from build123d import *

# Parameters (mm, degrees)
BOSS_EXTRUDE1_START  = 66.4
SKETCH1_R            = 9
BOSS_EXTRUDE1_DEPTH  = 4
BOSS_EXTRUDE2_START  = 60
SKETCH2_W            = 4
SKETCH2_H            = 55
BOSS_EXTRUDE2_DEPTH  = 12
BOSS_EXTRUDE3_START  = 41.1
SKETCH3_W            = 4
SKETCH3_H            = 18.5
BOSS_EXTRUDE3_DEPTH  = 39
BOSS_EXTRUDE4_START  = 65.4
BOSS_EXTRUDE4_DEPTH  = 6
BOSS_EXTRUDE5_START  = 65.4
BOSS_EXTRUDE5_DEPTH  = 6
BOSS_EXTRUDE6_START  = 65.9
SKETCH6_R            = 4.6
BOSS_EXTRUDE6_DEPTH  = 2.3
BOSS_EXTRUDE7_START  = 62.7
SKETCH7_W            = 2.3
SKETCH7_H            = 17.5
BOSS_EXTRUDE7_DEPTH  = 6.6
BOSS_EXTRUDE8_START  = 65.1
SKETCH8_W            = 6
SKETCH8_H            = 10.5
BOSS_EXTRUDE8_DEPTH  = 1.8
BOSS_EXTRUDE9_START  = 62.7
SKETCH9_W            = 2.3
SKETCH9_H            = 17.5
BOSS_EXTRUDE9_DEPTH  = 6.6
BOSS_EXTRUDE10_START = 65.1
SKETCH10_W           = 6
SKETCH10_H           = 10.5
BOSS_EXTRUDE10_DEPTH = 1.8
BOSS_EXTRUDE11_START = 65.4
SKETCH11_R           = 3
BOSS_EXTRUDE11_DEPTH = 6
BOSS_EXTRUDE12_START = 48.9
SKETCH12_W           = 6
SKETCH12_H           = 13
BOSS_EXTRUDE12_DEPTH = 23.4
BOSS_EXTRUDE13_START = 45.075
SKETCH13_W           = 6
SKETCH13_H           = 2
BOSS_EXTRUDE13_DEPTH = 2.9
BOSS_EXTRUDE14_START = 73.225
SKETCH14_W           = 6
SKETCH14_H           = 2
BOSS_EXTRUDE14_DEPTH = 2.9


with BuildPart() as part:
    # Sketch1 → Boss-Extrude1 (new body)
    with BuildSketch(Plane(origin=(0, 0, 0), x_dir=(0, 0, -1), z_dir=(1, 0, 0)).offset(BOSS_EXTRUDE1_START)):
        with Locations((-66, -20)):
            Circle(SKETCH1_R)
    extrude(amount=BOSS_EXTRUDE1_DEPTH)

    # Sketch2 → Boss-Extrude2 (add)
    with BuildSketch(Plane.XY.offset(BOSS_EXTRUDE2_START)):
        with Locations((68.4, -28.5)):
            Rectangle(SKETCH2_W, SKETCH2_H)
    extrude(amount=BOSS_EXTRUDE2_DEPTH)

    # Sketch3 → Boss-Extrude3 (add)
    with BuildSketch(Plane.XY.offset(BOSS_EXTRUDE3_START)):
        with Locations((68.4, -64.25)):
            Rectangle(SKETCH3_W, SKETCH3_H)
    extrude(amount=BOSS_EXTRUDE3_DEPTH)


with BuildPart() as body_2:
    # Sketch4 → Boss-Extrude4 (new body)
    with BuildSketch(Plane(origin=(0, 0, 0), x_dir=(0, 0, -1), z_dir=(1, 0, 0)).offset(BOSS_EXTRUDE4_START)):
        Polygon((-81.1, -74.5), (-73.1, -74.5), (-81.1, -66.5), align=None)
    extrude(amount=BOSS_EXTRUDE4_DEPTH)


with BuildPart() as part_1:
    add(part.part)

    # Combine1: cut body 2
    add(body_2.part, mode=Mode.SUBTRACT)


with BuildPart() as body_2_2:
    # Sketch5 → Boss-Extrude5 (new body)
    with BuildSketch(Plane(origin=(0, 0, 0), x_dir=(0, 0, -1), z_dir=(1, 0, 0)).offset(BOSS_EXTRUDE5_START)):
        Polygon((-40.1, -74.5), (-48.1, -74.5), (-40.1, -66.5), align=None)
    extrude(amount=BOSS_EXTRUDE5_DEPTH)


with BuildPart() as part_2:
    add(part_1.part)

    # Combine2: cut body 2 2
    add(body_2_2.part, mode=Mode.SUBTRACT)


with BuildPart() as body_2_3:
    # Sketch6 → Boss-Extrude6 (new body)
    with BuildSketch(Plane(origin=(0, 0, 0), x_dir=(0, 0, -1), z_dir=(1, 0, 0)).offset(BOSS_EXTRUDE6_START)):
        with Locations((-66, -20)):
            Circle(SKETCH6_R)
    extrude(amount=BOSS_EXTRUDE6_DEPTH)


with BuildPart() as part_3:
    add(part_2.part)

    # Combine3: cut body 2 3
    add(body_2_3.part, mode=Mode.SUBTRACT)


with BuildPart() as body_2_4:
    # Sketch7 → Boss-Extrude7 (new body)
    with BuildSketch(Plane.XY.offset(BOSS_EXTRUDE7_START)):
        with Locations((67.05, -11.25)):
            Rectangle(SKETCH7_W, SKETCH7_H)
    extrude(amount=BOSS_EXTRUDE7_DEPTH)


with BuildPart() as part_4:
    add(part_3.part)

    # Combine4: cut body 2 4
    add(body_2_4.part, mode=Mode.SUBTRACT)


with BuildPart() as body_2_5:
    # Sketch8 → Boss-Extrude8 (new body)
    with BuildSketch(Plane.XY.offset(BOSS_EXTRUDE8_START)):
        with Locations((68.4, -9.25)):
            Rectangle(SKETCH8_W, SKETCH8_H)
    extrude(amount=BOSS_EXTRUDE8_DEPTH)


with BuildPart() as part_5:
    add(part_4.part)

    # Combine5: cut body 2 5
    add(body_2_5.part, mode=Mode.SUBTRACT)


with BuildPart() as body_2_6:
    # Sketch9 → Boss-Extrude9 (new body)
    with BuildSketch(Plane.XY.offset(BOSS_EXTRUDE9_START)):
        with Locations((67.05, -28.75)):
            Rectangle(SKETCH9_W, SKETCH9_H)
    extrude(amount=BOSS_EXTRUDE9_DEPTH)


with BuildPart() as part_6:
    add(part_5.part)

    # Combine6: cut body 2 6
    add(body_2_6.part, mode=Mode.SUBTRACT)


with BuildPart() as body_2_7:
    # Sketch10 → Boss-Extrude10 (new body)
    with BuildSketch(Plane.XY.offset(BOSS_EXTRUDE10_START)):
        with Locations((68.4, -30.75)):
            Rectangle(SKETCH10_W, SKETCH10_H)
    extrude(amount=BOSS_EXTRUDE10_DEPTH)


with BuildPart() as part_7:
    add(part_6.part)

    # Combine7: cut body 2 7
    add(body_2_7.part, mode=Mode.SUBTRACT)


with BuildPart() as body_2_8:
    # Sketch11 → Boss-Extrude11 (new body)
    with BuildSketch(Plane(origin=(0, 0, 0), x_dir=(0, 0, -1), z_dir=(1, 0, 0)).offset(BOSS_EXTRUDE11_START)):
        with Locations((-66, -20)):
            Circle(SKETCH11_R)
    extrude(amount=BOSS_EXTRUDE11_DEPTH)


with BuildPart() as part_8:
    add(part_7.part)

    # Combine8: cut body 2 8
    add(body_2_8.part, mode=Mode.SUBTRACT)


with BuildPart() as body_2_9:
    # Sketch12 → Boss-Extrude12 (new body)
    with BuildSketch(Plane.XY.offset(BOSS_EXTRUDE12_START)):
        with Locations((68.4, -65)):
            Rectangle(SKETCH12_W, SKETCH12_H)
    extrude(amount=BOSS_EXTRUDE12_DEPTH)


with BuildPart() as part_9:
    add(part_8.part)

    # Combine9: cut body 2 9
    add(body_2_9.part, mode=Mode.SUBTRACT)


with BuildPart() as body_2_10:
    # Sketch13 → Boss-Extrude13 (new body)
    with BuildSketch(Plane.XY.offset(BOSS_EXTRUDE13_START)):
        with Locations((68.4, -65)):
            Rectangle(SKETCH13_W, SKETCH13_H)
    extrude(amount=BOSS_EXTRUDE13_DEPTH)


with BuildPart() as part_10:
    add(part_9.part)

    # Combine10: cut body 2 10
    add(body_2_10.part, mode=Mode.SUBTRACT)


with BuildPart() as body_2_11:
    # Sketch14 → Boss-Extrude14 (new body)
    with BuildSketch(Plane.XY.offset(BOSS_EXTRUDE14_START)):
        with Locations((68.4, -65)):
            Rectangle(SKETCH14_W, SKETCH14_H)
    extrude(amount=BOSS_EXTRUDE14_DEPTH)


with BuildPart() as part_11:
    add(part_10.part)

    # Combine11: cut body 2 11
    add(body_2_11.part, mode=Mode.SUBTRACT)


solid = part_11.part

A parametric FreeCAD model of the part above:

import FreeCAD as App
import Part
import Sketcher
Q = App.Units.Quantity

doc = App.newDocument("Part")
body = doc.addObject("PartDesign::Body", "Body")

# Sketch on YZ plane
sketch1 = body.newObject("Sketcher::SketchObject", "Sketch")
sketch1.AttachmentSupport = (doc.getObject("YZ_Plane"), [""])
sketch1.MapMode = "FlatFace"
sketch1.AttachmentOffset = App.Placement(App.Vector(0, 0, 66.4), App.Rotation())
sketch1.addGeometry(Part.Circle(App.Vector(-20, 66, 0), App.Vector(0, 0, 1), 9), False)
sketch1.addConstraint([
    Sketcher.Constraint("Diameter", 0, Q("18 mm")),
    Sketcher.Constraint("DistanceX", 0, 3, -1, 1, Q("20 mm")),
    Sketcher.Constraint("DistanceY", -1, 1, 0, 3, Q("66 mm")),
])
pad1 = body.newObject("PartDesign::Pad", "Pad")
pad1.Profile = sketch1
pad1.Length = 4

# Sketch on XY plane
sketch2 = body.newObject("Sketcher::SketchObject", "Sketch001")
sketch2.AttachmentSupport = (doc.getObject("XY_Plane"), [""])
sketch2.MapMode = "FlatFace"
sketch2.AttachmentOffset = App.Placement(App.Vector(0, 0, 60), App.Rotation())
sketch2.addGeometry([
    Part.LineSegment(App.Vector(66.4, -1, 0), App.Vector(66.4, -56, 0)),
    Part.LineSegment(App.Vector(66.4, -56, 0), App.Vector(70.4, -56, 0)),
    Part.LineSegment(App.Vector(70.4, -56, 0), App.Vector(70.4, -1, 0)),
    Part.LineSegment(App.Vector(70.4, -1, 0), App.Vector(66.4, -1, 0)),
], False)
sketch2.addConstraint([
    Sketcher.Constraint("Coincident", 0, 2, 1, 1),
    Sketcher.Constraint("Coincident", 1, 2, 2, 1),
    Sketcher.Constraint("Coincident", 2, 2, 3, 1),
    Sketcher.Constraint("Coincident", 3, 2, 0, 1),
    Sketcher.Constraint("Vertical", 0),
    Sketcher.Constraint("Horizontal", 1),
    Sketcher.Constraint("Vertical", 2),
    Sketcher.Constraint("Horizontal", 3),
    Sketcher.Constraint("DistanceX", 1, 1, 1, 2, Q("4 mm")),
    Sketcher.Constraint("DistanceY", 0, 2, 0, 1, Q("55 mm")),
    Sketcher.Constraint("DistanceY", 0, 2, -1, 1, Q("56 mm")),
    Sketcher.Constraint("DistanceX", -1, 1, 0, 2, Q("66.4 mm")),
])
pad2 = body.newObject("PartDesign::Pad", "Pad001")
pad2.Profile = sketch2
pad2.Length = 12

# Sketch on XY plane
sketch3 = body.newObject("Sketcher::SketchObject", "Sketch002")
sketch3.AttachmentSupport = (doc.getObject("XY_Plane"), [""])
sketch3.MapMode = "FlatFace"
sketch3.AttachmentOffset = App.Placement(App.Vector(0, 0, 41.1), App.Rotation())
sketch3.addGeometry([
    Part.LineSegment(App.Vector(66.4, -55, 0), App.Vector(66.4, -73.5, 0)),
    Part.LineSegment(App.Vector(66.4, -73.5, 0), App.Vector(70.4, -73.5, 0)),
    Part.LineSegment(App.Vector(70.4, -73.5, 0), App.Vector(70.4, -55, 0)),
    Part.LineSegment(App.Vector(70.4, -55, 0), App.Vector(66.4, -55, 0)),
], False)
sketch3.addConstraint([
    Sketcher.Constraint("Coincident", 0, 2, 1, 1),
    Sketcher.Constraint("Coincident", 1, 2, 2, 1),
    Sketcher.Constraint("Coincident", 2, 2, 3, 1),
    Sketcher.Constraint("Coincident", 3, 2, 0, 1),
    Sketcher.Constraint("Vertical", 0),
    Sketcher.Constraint("Horizontal", 1),
    Sketcher.Constraint("Vertical", 2),
    Sketcher.Constraint("Horizontal", 3),
    Sketcher.Constraint("DistanceX", 1, 1, 1, 2, Q("4 mm")),
    Sketcher.Constraint("DistanceY", 0, 2, 0, 1, Q("18.5 mm")),
    Sketcher.Constraint("DistanceY", 2, 2, -1, 1, Q("55 mm")),
    Sketcher.Constraint("DistanceX", -1, 1, 0, 2, Q("66.4 mm")),
])
pad3 = body.newObject("PartDesign::Pad", "Pad002")
pad3.Profile = sketch3
pad3.Length = 39
body2 = doc.addObject("PartDesign::Body", "Body001")

# Sketch on YZ plane
sketch4 = body2.newObject("Sketcher::SketchObject", "Sketch003")
sketch4.AttachmentSupport = (doc.getObject("YZ_Plane001"), [""])
sketch4.MapMode = "FlatFace"
sketch4.AttachmentOffset = App.Placement(App.Vector(0, 0, 65.4), App.Rotation())
sketch4.addGeometry([
    Part.LineSegment(App.Vector(-74, 81, 0), App.Vector(-74, 73, 0)),
    Part.LineSegment(App.Vector(-74, 73, 0), App.Vector(-66, 81, 0)),
    Part.LineSegment(App.Vector(-66, 81, 0), App.Vector(-74, 81, 0)),
], False)
sketch4.addConstraint([
    Sketcher.Constraint("Coincident", 0, 2, 1, 1),
    Sketcher.Constraint("Coincident", 1, 2, 2, 1),
    Sketcher.Constraint("Coincident", 2, 2, 0, 1),
    Sketcher.Constraint("Vertical", 0),
    Sketcher.Constraint("Horizontal", 2),
    Sketcher.Constraint("Equal", 2, 0),
    Sketcher.Constraint("DistanceX", 2, 2, 2, 1, Q("8 mm")),
    Sketcher.Constraint("DistanceX", 0, 2, -1, 1, Q("74.5 mm")),
    Sketcher.Constraint("DistanceY", -1, 1, 0, 2, Q("73.1 mm")),
])
pad4 = body2.newObject("PartDesign::Pad", "Pad003")
pad4.Profile = sketch4
pad4.Length = 6
doc.recompute()

boolean = body.newObject("PartDesign::Boolean", "Boolean")
boolean.Type = "Cut"
boolean.addObjects([body2])
body3 = doc.addObject("PartDesign::Body", "Body002")

# Sketch on YZ plane
sketch5 = body3.newObject("Sketcher::SketchObject", "Sketch004")
sketch5.AttachmentSupport = (doc.getObject("YZ_Plane002"), [""])
sketch5.MapMode = "FlatFace"
sketch5.AttachmentOffset = App.Placement(App.Vector(0, 0, 65.4), App.Rotation())
sketch5.addGeometry([
    Part.LineSegment(App.Vector(-74, 48, 0), App.Vector(-74, 40, 0)),
    Part.LineSegment(App.Vector(-74, 40, 0), App.Vector(-66, 40, 0)),
    Part.LineSegment(App.Vector(-66, 40, 0), App.Vector(-74, 48, 0)),
], False)
sketch5.addConstraint([
    Sketcher.Constraint("Coincident", 0, 2, 1, 1),
    Sketcher.Constraint("Coincident", 1, 2, 2, 1),
    Sketcher.Constraint("Coincident", 2, 2, 0, 1),
    Sketcher.Constraint("Vertical", 0),
    Sketcher.Constraint("Horizontal", 1),
    Sketcher.Constraint("Equal", 1, 0),
    Sketcher.Constraint("DistanceX", 1, 1, 1, 2, Q("8 mm")),
    Sketcher.Constraint("DistanceX", 0, 2, -1, 1, Q("74.5 mm")),
    Sketcher.Constraint("DistanceY", -1, 1, 0, 2, Q("40.1 mm")),
])
pad5 = body3.newObject("PartDesign::Pad", "Pad004")
pad5.Profile = sketch5
pad5.Length = 6
doc.recompute()

boolean2 = body.newObject("PartDesign::Boolean", "Boolean001")
boolean2.Type = "Cut"
boolean2.addObjects([body3])
body4 = doc.addObject("PartDesign::Body", "Body003")

# Sketch on YZ plane
sketch6 = body4.newObject("Sketcher::SketchObject", "Sketch005")
sketch6.AttachmentSupport = (doc.getObject("YZ_Plane003"), [""])
sketch6.MapMode = "FlatFace"
sketch6.AttachmentOffset = App.Placement(App.Vector(0, 0, 65.9), App.Rotation())
sketch6.addGeometry(Part.Circle(App.Vector(-20, 66, 0), App.Vector(0, 0, 1), 4.6), False)
sketch6.addConstraint([
    Sketcher.Constraint("Diameter", 0, Q("9.2 mm")),
    Sketcher.Constraint("DistanceX", 0, 3, -1, 1, Q("20 mm")),
    Sketcher.Constraint("DistanceY", -1, 1, 0, 3, Q("66 mm")),
])
pad6 = body4.newObject("PartDesign::Pad", "Pad005")
pad6.Profile = sketch6
pad6.Length = 2.3
doc.recompute()

boolean3 = body.newObject("PartDesign::Boolean", "Boolean002")
boolean3.Type = "Cut"
boolean3.addObjects([body4])
body5 = doc.addObject("PartDesign::Body", "Body004")

# Sketch on XY plane
sketch7 = body5.newObject("Sketcher::SketchObject", "Sketch006")
sketch7.AttachmentSupport = (doc.getObject("XY_Plane004"), [""])
sketch7.MapMode = "FlatFace"
sketch7.AttachmentOffset = App.Placement(App.Vector(0, 0, 62.7), App.Rotation())
sketch7.addGeometry([
    Part.LineSegment(App.Vector(65.9, -2.5, 0), App.Vector(65.9, -20, 0)),
    Part.LineSegment(App.Vector(65.9, -20, 0), App.Vector(68.2, -20, 0)),
    Part.LineSegment(App.Vector(68.2, -20, 0), App.Vector(68.2, -2.5, 0)),
    Part.LineSegment(App.Vector(68.2, -2.5, 0), App.Vector(65.9, -2.5, 0)),
], False)
sketch7.addConstraint([
    Sketcher.Constraint("Coincident", 0, 2, 1, 1),
    Sketcher.Constraint("Coincident", 1, 2, 2, 1),
    Sketcher.Constraint("Coincident", 2, 2, 3, 1),
    Sketcher.Constraint("Coincident", 3, 2, 0, 1),
    Sketcher.Constraint("Vertical", 0),
    Sketcher.Constraint("Horizontal", 1),
    Sketcher.Constraint("Vertical", 2),
    Sketcher.Constraint("Horizontal", 3),
    Sketcher.Constraint("DistanceX", 1, 1, 1, 2, Q("2.3 mm")),
    Sketcher.Constraint("DistanceY", 0, 2, 0, 1, Q("17.5 mm")),
    Sketcher.Constraint("DistanceY", 0, 2, -1, 1, Q("20 mm")),
    Sketcher.Constraint("DistanceX", -1, 1, 0, 2, Q("65.9 mm")),
])
pad7 = body5.newObject("PartDesign::Pad", "Pad006")
pad7.Profile = sketch7
pad7.Length = 6.6
doc.recompute()

boolean4 = body.newObject("PartDesign::Boolean", "Boolean003")
boolean4.Type = "Cut"
boolean4.addObjects([body5])
body6 = doc.addObject("PartDesign::Body", "Body005")

# Sketch on XY plane
sketch8 = body6.newObject("Sketcher::SketchObject", "Sketch007")
sketch8.AttachmentSupport = (doc.getObject("XY_Plane005"), [""])
sketch8.MapMode = "FlatFace"
sketch8.AttachmentOffset = App.Placement(App.Vector(0, 0, 65.1), App.Rotation())
sketch8.addGeometry([
    Part.LineSegment(App.Vector(65, -4, 0), App.Vector(65, -14, 0)),
    Part.LineSegment(App.Vector(65, -14, 0), App.Vector(71, -14, 0)),
    Part.LineSegment(App.Vector(71, -14, 0), App.Vector(71, -4, 0)),
    Part.LineSegment(App.Vector(71, -4, 0), App.Vector(65, -4, 0)),
], False)
sketch8.addConstraint([
    Sketcher.Constraint("Coincident", 0, 2, 1, 1),
    Sketcher.Constraint("Coincident", 1, 2, 2, 1),
    Sketcher.Constraint("Coincident", 2, 2, 3, 1),
    Sketcher.Constraint("Coincident", 3, 2, 0, 1),
    Sketcher.Constraint("Vertical", 0),
    Sketcher.Constraint("Horizontal", 1),
    Sketcher.Constraint("Vertical", 2),
    Sketcher.Constraint("Horizontal", 3),
    Sketcher.Constraint("DistanceX", 1, 1, 1, 2, Q("6 mm")),
    Sketcher.Constraint("DistanceY", 0, 2, 0, 1, Q("10.5 mm")),
    Sketcher.Constraint("DistanceY", 2, 2, -1, 1, Q("4 mm")),
    Sketcher.Constraint("DistanceX", -1, 1, 0, 2, Q("65.4 mm")),
])
pad8 = body6.newObject("PartDesign::Pad", "Pad007")
pad8.Profile = sketch8
pad8.Length = 1.8
doc.recompute()

boolean5 = body.newObject("PartDesign::Boolean", "Boolean004")
boolean5.Type = "Cut"
boolean5.addObjects([body6])
body7 = doc.addObject("PartDesign::Body", "Body006")

# Sketch on XY plane
sketch9 = body7.newObject("Sketcher::SketchObject", "Sketch008")
sketch9.AttachmentSupport = (doc.getObject("XY_Plane006"), [""])
sketch9.MapMode = "FlatFace"
sketch9.AttachmentOffset = App.Placement(App.Vector(0, 0, 62.7), App.Rotation())
sketch9.addGeometry([
    Part.LineSegment(App.Vector(65.9, -20, 0), App.Vector(65.9, -37.5, 0)),
    Part.LineSegment(App.Vector(65.9, -37.5, 0), App.Vector(68.2, -37.5, 0)),
    Part.LineSegment(App.Vector(68.2, -37.5, 0), App.Vector(68.2, -20, 0)),
    Part.LineSegment(App.Vector(68.2, -20, 0), App.Vector(65.9, -20, 0)),
], False)
sketch9.addConstraint([
    Sketcher.Constraint("Coincident", 0, 2, 1, 1),
    Sketcher.Constraint("Coincident", 1, 2, 2, 1),
    Sketcher.Constraint("Coincident", 2, 2, 3, 1),
    Sketcher.Constraint("Coincident", 3, 2, 0, 1),
    Sketcher.Constraint("Vertical", 0),
    Sketcher.Constraint("Horizontal", 1),
    Sketcher.Constraint("Vertical", 2),
    Sketcher.Constraint("Horizontal", 3),
    Sketcher.Constraint("DistanceX", 1, 1, 1, 2, Q("2.3 mm")),
    Sketcher.Constraint("DistanceY", 0, 2, 0, 1, Q("17.5 mm")),
    Sketcher.Constraint("DistanceY", 2, 2, -1, 1, Q("20 mm")),
    Sketcher.Constraint("DistanceX", -1, 1, 0, 2, Q("65.9 mm")),
])
pad9 = body7.newObject("PartDesign::Pad", "Pad008")
pad9.Profile = sketch9
pad9.Length = 6.6
doc.recompute()

boolean6 = body.newObject("PartDesign::Boolean", "Boolean005")
boolean6.Type = "Cut"
boolean6.addObjects([body7])
body8 = doc.addObject("PartDesign::Body", "Body007")

# Sketch on XY plane
sketch10 = body8.newObject("Sketcher::SketchObject", "Sketch009")
sketch10.AttachmentSupport = (doc.getObject("XY_Plane007"), [""])
sketch10.MapMode = "FlatFace"
sketch10.AttachmentOffset = App.Placement(App.Vector(0, 0, 65.1), App.Rotation())
sketch10.addGeometry([
    Part.LineSegment(App.Vector(65, -26, 0), App.Vector(65, -36, 0)),
    Part.LineSegment(App.Vector(65, -36, 0), App.Vector(71, -36, 0)),
    Part.LineSegment(App.Vector(71, -36, 0), App.Vector(71, -26, 0)),
    Part.LineSegment(App.Vector(71, -26, 0), App.Vector(65, -26, 0)),
], False)
sketch10.addConstraint([
    Sketcher.Constraint("Coincident", 0, 2, 1, 1),
    Sketcher.Constraint("Coincident", 1, 2, 2, 1),
    Sketcher.Constraint("Coincident", 2, 2, 3, 1),
    Sketcher.Constraint("Coincident", 3, 2, 0, 1),
    Sketcher.Constraint("Vertical", 0),
    Sketcher.Constraint("Horizontal", 1),
    Sketcher.Constraint("Vertical", 2),
    Sketcher.Constraint("Horizontal", 3),
    Sketcher.Constraint("DistanceX", 1, 1, 1, 2, Q("6 mm")),
    Sketcher.Constraint("DistanceY", 0, 2, 0, 1, Q("10.5 mm")),
    Sketcher.Constraint("DistanceY", 0, 2, -1, 1, Q("36 mm")),
    Sketcher.Constraint("DistanceX", -1, 1, 0, 2, Q("65.4 mm")),
])
pad10 = body8.newObject("PartDesign::Pad", "Pad009")
pad10.Profile = sketch10
pad10.Length = 1.8
doc.recompute()

boolean7 = body.newObject("PartDesign::Boolean", "Boolean006")
boolean7.Type = "Cut"
boolean7.addObjects([body8])
body9 = doc.addObject("PartDesign::Body", "Body008")

# Sketch on YZ plane
sketch11 = body9.newObject("Sketcher::SketchObject", "Sketch010")
sketch11.AttachmentSupport = (doc.getObject("YZ_Plane008"), [""])
sketch11.MapMode = "FlatFace"
sketch11.AttachmentOffset = App.Placement(App.Vector(0, 0, 65.4), App.Rotation())
sketch11.addGeometry(Part.Circle(App.Vector(-20, 66, 0), App.Vector(0, 0, 1), 3), False)
sketch11.addConstraint([
    Sketcher.Constraint("Diameter", 0, Q("6 mm")),
    Sketcher.Constraint("DistanceX", 0, 3, -1, 1, Q("20 mm")),
    Sketcher.Constraint("DistanceY", -1, 1, 0, 3, Q("66 mm")),
])
pad11 = body9.newObject("PartDesign::Pad", "Pad010")
pad11.Profile = sketch11
pad11.Length = 6
doc.recompute()

boolean8 = body.newObject("PartDesign::Boolean", "Boolean007")
boolean8.Type = "Cut"
boolean8.addObjects([body9])
body10 = doc.addObject("PartDesign::Body", "Body009")

# Sketch on XY plane
sketch12 = body10.newObject("Sketcher::SketchObject", "Sketch011")
sketch12.AttachmentSupport = (doc.getObject("XY_Plane009"), [""])
sketch12.MapMode = "FlatFace"
sketch12.AttachmentOffset = App.Placement(App.Vector(0, 0, 48.9), App.Rotation())
sketch12.addGeometry([
    Part.LineSegment(App.Vector(65, -58, 0), App.Vector(65, -72, 0)),
    Part.LineSegment(App.Vector(65, -72, 0), App.Vector(71, -72, 0)),
    Part.LineSegment(App.Vector(71, -72, 0), App.Vector(71, -58, 0)),
    Part.LineSegment(App.Vector(71, -58, 0), App.Vector(65, -58, 0)),
], False)
sketch12.addConstraint([
    Sketcher.Constraint("Coincident", 0, 2, 1, 1),
    Sketcher.Constraint("Coincident", 1, 2, 2, 1),
    Sketcher.Constraint("Coincident", 2, 2, 3, 1),
    Sketcher.Constraint("Coincident", 3, 2, 0, 1),
    Sketcher.Constraint("Vertical", 0),
    Sketcher.Constraint("Horizontal", 1),
    Sketcher.Constraint("Vertical", 2),
    Sketcher.Constraint("Horizontal", 3),
    Sketcher.Constraint("DistanceX", 1, 1, 1, 2, Q("6 mm")),
    Sketcher.Constraint("DistanceY", 0, 2, 0, 1, Q("13 mm")),
    Sketcher.Constraint("DistanceX", -1, 1, 0, 2, Q("65.4 mm")),
    Sketcher.Constraint("DistanceY", 0, 2, -1, 1, Q("71.5 mm")),
])
pad12 = body10.newObject("PartDesign::Pad", "Pad011")
pad12.Profile = sketch12
pad12.Length = 23.4
doc.recompute()

boolean9 = body.newObject("PartDesign::Boolean", "Boolean008")
boolean9.Type = "Cut"
boolean9.addObjects([body10])
body11 = doc.addObject("PartDesign::Body", "Body010")

# Sketch on XY plane
sketch13 = body11.newObject("Sketcher::SketchObject", "Sketch012")
sketch13.AttachmentSupport = (doc.getObject("XY_Plane010"), [""])
sketch13.MapMode = "FlatFace"
sketch13.AttachmentOffset = App.Placement(App.Vector(0, 0, 45.075), App.Rotation())
sketch13.addGeometry([
    Part.LineSegment(App.Vector(65.4, -64, 0), App.Vector(65.4, -66, 0)),
    Part.LineSegment(App.Vector(65.4, -66, 0), App.Vector(71.4, -66, 0)),
    Part.LineSegment(App.Vector(71.4, -66, 0), App.Vector(71.4, -64, 0)),
    Part.LineSegment(App.Vector(71.4, -64, 0), App.Vector(65.4, -64, 0)),
], False)
sketch13.addConstraint([
    Sketcher.Constraint("Coincident", 0, 2, 1, 1),
    Sketcher.Constraint("Coincident", 1, 2, 2, 1),
    Sketcher.Constraint("Coincident", 2, 2, 3, 1),
    Sketcher.Constraint("Coincident", 3, 2, 0, 1),
    Sketcher.Constraint("Vertical", 0),
    Sketcher.Constraint("Horizontal", 1),
    Sketcher.Constraint("Vertical", 2),
    Sketcher.Constraint("Horizontal", 3),
    Sketcher.Constraint("DistanceX", 1, 1, 1, 2, Q("6 mm")),
    Sketcher.Constraint("DistanceY", 0, 2, 0, 1, Q("2 mm")),
    Sketcher.Constraint("DistanceY", 0, 2, -1, 1, Q("66 mm")),
    Sketcher.Constraint("DistanceX", -1, 1, 0, 2, Q("65.4 mm")),
])
pad13 = body11.newObject("PartDesign::Pad", "Pad012")
pad13.Profile = sketch13
pad13.Length = 2.9
doc.recompute()

boolean10 = body.newObject("PartDesign::Boolean", "Boolean009")
boolean10.Type = "Cut"
boolean10.addObjects([body11])
body12 = doc.addObject("PartDesign::Body", "Body011")

# Sketch on XY plane
sketch14 = body12.newObject("Sketcher::SketchObject", "Sketch013")
sketch14.AttachmentSupport = (doc.getObject("XY_Plane011"), [""])
sketch14.MapMode = "FlatFace"
sketch14.AttachmentOffset = App.Placement(App.Vector(0, 0, 73.225), App.Rotation())
sketch14.addGeometry([
    Part.LineSegment(App.Vector(65.4, -64, 0), App.Vector(65.4, -66, 0)),
    Part.LineSegment(App.Vector(65.4, -66, 0), App.Vector(71.4, -66, 0)),
    Part.LineSegment(App.Vector(71.4, -66, 0), App.Vector(71.4, -64, 0)),
    Part.LineSegment(App.Vector(71.4, -64, 0), App.Vector(65.4, -64, 0)),
], False)
sketch14.addConstraint([
    Sketcher.Constraint("Coincident", 0, 2, 1, 1),
    Sketcher.Constraint("Coincident", 1, 2, 2, 1),
    Sketcher.Constraint("Coincident", 2, 2, 3, 1),
    Sketcher.Constraint("Coincident", 3, 2, 0, 1),
    Sketcher.Constraint("Vertical", 0),
    Sketcher.Constraint("Horizontal", 1),
    Sketcher.Constraint("Vertical", 2),
    Sketcher.Constraint("Horizontal", 3),
    Sketcher.Constraint("DistanceX", 1, 1, 1, 2, Q("6 mm")),
    Sketcher.Constraint("DistanceY", 0, 2, 0, 1, Q("2 mm")),
    Sketcher.Constraint("DistanceY", 0, 2, -1, 1, Q("66 mm")),
    Sketcher.Constraint("DistanceX", -1, 1, 0, 2, Q("65.4 mm")),
])
pad14 = body12.newObject("PartDesign::Pad", "Pad013")
pad14.Profile = sketch14
pad14.Length = 2.9
doc.recompute()

boolean11 = body.newObject("PartDesign::Boolean", "Boolean010")
boolean11.Type = "Cut"
boolean11.addObjects([body12])

doc.recompute()
